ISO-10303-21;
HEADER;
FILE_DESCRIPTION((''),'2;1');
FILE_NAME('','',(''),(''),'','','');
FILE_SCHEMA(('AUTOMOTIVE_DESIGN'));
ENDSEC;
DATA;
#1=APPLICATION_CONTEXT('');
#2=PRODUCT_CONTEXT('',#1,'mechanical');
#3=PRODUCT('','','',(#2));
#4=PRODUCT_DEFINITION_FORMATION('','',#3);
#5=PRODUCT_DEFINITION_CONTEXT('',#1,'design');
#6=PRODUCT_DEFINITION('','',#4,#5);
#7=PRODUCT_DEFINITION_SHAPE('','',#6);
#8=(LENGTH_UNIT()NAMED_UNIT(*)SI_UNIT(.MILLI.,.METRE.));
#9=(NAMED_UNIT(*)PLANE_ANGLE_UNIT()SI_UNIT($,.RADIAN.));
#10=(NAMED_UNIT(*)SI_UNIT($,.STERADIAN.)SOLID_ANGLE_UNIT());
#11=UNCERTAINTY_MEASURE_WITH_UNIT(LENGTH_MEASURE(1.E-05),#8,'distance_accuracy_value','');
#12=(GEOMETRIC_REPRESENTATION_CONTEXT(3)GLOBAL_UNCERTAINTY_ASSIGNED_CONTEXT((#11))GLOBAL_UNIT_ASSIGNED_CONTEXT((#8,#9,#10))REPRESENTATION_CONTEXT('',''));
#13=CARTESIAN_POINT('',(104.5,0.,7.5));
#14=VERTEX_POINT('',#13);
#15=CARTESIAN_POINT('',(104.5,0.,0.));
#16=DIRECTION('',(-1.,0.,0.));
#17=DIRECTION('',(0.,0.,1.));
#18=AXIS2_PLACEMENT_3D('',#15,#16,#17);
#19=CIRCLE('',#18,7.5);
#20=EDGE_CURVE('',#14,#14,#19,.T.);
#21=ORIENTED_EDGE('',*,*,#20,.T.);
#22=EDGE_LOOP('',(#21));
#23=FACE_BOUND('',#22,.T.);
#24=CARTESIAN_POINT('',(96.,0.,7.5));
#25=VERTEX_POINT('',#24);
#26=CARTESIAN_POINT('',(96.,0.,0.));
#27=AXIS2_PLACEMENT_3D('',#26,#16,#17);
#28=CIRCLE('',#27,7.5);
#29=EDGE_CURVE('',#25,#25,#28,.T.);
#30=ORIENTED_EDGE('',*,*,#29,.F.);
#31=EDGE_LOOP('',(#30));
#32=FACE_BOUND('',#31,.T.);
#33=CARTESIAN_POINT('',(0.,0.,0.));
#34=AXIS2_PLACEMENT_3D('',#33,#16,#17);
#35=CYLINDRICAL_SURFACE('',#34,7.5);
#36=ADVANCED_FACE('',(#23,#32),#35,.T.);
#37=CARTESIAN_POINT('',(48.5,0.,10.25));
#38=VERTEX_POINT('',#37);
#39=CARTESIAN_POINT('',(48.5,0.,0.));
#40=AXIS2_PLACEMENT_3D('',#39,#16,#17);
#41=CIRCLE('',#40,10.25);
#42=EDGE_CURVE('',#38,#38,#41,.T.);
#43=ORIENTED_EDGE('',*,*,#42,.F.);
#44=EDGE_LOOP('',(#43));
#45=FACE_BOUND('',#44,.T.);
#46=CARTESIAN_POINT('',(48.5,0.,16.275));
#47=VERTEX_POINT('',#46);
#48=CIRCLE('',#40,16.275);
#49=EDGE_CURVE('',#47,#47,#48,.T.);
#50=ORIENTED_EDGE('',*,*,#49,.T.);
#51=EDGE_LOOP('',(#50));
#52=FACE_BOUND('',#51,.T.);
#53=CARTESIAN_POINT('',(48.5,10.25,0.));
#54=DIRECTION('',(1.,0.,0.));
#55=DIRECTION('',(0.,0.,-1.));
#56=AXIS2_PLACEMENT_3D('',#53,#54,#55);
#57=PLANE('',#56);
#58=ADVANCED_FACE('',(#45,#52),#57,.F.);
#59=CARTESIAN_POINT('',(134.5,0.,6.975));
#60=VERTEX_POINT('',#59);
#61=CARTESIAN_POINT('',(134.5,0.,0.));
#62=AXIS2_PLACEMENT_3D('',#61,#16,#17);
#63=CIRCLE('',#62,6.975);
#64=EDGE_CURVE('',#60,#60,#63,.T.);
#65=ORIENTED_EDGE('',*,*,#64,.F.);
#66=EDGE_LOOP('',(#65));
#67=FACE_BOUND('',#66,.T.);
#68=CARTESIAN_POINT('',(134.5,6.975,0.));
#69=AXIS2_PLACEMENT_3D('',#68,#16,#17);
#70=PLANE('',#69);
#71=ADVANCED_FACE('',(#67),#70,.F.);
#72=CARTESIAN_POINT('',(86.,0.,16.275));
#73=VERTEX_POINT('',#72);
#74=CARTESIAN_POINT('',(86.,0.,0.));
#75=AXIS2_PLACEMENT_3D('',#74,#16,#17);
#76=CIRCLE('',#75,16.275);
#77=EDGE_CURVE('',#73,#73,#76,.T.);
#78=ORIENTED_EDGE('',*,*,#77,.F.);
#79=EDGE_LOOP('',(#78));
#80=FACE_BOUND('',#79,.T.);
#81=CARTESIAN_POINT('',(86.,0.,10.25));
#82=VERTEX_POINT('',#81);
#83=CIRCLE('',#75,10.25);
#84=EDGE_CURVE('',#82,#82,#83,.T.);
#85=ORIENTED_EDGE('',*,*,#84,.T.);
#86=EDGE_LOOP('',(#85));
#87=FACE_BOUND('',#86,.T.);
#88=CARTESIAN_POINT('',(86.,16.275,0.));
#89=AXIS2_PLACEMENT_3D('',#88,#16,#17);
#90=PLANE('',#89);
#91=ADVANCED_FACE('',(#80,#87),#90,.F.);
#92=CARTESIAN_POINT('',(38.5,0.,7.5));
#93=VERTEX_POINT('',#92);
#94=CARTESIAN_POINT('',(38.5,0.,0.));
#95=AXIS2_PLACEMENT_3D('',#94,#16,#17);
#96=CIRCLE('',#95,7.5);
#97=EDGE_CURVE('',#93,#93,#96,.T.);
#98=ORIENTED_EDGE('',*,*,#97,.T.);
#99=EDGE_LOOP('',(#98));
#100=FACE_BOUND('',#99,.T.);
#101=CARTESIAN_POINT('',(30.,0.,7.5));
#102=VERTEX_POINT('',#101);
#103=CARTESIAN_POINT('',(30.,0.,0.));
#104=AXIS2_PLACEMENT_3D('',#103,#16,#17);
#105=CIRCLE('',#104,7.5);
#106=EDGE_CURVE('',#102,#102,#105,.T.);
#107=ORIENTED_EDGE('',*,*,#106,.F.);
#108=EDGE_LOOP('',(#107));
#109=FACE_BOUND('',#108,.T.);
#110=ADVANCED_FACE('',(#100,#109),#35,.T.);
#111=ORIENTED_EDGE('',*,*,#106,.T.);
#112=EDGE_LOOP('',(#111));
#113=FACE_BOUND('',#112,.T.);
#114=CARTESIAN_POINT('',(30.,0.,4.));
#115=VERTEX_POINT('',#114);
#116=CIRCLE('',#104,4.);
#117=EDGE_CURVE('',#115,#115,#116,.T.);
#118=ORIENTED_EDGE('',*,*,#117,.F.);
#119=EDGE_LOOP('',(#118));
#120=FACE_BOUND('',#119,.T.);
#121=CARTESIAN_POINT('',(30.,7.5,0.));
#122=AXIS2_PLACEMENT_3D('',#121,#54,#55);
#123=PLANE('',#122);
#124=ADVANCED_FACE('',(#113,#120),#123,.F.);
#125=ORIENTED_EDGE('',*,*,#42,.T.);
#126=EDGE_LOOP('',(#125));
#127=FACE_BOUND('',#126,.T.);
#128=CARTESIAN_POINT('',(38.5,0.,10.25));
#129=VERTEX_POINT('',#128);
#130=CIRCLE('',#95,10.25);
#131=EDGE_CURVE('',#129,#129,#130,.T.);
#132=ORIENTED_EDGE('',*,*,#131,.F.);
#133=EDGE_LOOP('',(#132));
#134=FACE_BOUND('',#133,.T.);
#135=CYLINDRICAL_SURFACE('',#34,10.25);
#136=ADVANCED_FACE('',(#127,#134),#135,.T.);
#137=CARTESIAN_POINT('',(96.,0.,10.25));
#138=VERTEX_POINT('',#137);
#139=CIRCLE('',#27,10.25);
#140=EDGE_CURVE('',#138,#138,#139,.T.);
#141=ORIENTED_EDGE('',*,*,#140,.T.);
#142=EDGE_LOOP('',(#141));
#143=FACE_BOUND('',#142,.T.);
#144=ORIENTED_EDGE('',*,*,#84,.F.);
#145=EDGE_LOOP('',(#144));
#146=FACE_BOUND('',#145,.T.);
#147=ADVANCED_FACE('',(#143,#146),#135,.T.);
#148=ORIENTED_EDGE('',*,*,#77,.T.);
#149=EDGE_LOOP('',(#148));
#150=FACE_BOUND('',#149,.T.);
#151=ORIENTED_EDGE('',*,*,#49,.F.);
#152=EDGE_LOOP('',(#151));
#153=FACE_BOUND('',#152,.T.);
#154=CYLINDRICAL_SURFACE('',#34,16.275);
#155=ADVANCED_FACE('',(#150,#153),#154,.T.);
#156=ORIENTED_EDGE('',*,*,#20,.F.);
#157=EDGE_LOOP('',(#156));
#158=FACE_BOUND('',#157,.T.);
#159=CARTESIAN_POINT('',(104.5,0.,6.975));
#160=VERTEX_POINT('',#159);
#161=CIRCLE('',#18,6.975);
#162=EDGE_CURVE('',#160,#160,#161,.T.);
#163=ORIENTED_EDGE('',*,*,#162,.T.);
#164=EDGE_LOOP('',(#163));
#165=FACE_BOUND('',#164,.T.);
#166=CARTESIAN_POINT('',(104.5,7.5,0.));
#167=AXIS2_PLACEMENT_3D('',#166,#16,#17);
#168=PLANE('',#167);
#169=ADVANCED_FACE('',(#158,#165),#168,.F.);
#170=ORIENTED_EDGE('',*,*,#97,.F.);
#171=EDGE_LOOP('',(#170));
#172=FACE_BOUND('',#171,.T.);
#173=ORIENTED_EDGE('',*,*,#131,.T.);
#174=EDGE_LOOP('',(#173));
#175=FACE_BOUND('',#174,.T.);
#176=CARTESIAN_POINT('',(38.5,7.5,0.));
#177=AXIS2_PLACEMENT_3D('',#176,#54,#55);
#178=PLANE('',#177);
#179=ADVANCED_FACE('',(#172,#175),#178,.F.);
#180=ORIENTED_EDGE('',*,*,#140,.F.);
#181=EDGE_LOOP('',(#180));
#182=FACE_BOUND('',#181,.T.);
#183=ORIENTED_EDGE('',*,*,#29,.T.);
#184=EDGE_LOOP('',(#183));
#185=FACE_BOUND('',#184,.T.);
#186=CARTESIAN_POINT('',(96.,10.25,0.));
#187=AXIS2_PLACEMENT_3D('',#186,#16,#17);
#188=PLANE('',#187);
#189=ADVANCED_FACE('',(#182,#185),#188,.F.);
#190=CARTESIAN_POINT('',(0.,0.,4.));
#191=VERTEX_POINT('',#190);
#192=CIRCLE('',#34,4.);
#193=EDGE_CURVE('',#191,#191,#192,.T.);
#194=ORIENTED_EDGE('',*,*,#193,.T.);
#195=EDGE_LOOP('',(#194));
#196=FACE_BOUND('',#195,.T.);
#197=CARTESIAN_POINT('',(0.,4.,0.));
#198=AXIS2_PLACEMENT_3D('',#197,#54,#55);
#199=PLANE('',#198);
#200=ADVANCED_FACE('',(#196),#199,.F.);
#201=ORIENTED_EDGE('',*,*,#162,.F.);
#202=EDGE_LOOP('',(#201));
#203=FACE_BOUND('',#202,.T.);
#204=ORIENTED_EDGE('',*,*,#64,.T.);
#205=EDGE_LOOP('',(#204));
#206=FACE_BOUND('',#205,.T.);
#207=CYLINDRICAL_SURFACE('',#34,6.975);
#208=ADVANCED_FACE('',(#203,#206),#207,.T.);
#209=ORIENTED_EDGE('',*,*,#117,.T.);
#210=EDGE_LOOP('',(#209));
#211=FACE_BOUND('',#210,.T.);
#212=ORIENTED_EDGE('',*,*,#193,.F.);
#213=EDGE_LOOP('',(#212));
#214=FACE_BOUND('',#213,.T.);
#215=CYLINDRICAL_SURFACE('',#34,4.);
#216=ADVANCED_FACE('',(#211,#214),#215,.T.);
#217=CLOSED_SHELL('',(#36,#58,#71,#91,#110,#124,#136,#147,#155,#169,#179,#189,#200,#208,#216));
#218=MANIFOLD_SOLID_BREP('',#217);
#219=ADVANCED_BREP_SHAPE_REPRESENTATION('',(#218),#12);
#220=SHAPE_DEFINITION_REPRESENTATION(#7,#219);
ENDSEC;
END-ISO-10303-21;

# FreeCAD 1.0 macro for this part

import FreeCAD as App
import Part
import Sketcher
from FreeCAD import Vector
Q = App.Units.Quantity


def add_polygon(sketch, points):
    """Adds a closed chain of lines whose ends are joined by coincident constraints."""
    first, n = sketch.GeometryCount, len(points)
    for a, b in zip(points, points[1:] + points[:1]):
        sketch.addGeometry(Part.LineSegment(App.Vector(*a, 0), App.Vector(*b, 0)), False)
    for i in range(n):
        sketch.addConstraint(Sketcher.Constraint("Coincident", first + i, 2, first + (i + 1) % n, 1))

doc = App.newDocument("Part")
body = doc.addObject("PartDesign::Body", "Body")

sketch1 = body.newObject("Sketcher::SketchObject", "Sketch")
sketch1.AttachmentSupport = (doc.getObject("XY_Plane"), [""])
sketch1.MapMode = "FlatFace"
add_polygon(sketch1, [(38.5, 7.5), (30, 7.5), (30, 4), (0, 4), (0, 0), (134.5, 0), (134.5, 6.975), (104.5, 6.975), (104.5, 7.5), (96, 7.5), (96, 10.25), (86, 10.25), (86, 16.275), (48.5, 16.275), (48.5, 10.25), (38.5, 10.25)])
sketch1.addConstraint([
    Sketcher.Constraint("Horizontal", 0),
    Sketcher.Constraint("Vertical", 1),
    Sketcher.Constraint("Horizontal", 2),
    Sketcher.Constraint("Vertical", 3),
    Sketcher.Constraint("Horizontal", 4),
    Sketcher.Constraint("Vertical", 5),
    Sketcher.Constraint("Horizontal", 6),
    Sketcher.Constraint("Vertical", 7),
    Sketcher.Constraint("Horizontal", 8),
    Sketcher.Constraint("Vertical", 9),
    Sketcher.Constraint("Horizontal", 10),
    Sketcher.Constraint("Vertical", 11),
    Sketcher.Constraint("Horizontal", 12),
    Sketcher.Constraint("Vertical", 13),
    Sketcher.Constraint("Horizontal", 14),
    Sketcher.Constraint("Vertical", 15),
    Sketcher.Constraint("Coincident", 3, 2, -1, 1),
    Sketcher.Constraint("Horizontal", 0, 2, 7, 2),
    Sketcher.Constraint("Horizontal", 10, 2, 13, 2),
    Sketcher.Constraint("Equal", 2, 6),
    Sketcher.Constraint("Equal", 0, 8),
    Sketcher.Constraint("Equal", 10, 14),
    Sketcher.Constraint("DistanceX", 2, 2, 2, 1, Q("30 mm")),
    Sketcher.Constraint("DistanceX", 10, 2, 10, 1, Q("10 mm")),
    Sketcher.Constraint("DistanceY", 3, 2, 3, 1, Q("4 mm")),
    Sketcher.Constraint("DistanceX", 0, 2, 0, 1, Q("8.5 mm")),
    Sketcher.Constraint("DistanceX", 4, 1, 4, 2, Q("134.5 mm")),
    Sketcher.Constraint("DistanceY", 1, 2, 1, 1, Q("3.5 mm")),
    Sketcher.Constraint("DistanceY", 9, 1, 9, 2, Q("2.75 mm")),
    Sketcher.Constraint("DistanceY", 6, 2, 11, 2, Q("9.3 mm")),
    Sketcher.Constraint("DistanceY", 5, 1, 5, 2, Q("6.975 mm")),
])
revolution = body.newObject("PartDesign::Revolution", "Revolution")
revolution.Profile = sketch1
revolution.ReferenceAxis = (sketch1, ["H_Axis"])
revolution.Angle = 360

doc.recompute()
